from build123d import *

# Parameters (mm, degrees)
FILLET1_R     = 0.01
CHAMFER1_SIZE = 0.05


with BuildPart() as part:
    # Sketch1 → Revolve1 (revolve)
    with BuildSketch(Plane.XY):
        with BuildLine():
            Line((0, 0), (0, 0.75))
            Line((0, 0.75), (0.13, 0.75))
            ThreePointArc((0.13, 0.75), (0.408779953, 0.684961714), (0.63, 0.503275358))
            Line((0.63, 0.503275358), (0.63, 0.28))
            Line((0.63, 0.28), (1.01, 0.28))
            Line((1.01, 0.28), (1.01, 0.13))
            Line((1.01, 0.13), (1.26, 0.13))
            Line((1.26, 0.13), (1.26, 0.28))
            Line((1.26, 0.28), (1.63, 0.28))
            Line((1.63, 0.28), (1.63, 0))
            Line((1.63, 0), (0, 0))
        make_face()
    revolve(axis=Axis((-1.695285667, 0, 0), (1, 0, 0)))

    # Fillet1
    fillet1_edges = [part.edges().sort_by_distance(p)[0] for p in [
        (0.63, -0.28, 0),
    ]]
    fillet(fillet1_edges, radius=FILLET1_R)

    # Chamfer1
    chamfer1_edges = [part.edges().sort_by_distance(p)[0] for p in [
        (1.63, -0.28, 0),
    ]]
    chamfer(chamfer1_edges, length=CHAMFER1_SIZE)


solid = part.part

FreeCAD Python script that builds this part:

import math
import FreeCAD as App
import Part
import Sketcher

V = App.Vector
Q = App.Units.Quantity


def edges_at(feature, points):
    """Names of the edges that pass closest to the given points."""
    edges = feature.Shape.Edges
    near = lambda p: min(range(len(edges)), key=lambda i: edges[i].distToShape(Part.Vertex(*p))[0])
    return sorted({f"Edge{near(p) + 1}" for p in points})

doc = App.newDocument("Part")
body = doc.addObject("PartDesign::Body", "Body")

# Sketch on XY plane
sketch1 = doc.addObject("Sketcher::SketchObject", "Sketch")
body.addObject(sketch1)
sketch1.AttachmentSupport = (doc.XY_Plane, [""])
sketch1.MapMode = "FlatFace"
sketch1.addGeometry([
    Part.LineSegment(V(0, 0.75, 0), V(0, 0, 0)),  # 0
    Part.LineSegment(V(0, 0, 0), V(1.63, 0, 0)),  # 1
    Part.LineSegment(V(1.63, 0, 0), V(1.63, 0.28, 0)),  # 2
    Part.LineSegment(V(1.63, 0.28, 0), V(1.26, 0.28, 0)),  # 3
    Part.LineSegment(V(1.26, 0.28, 0), V(1.26, 0.13, 0)),  # 4
    Part.LineSegment(V(1.26, 0.13, 0), V(1.01, 0.13, 0)),  # 5
    Part.LineSegment(V(1.01, 0.13, 0), V(1.01, 0.28, 0)),  # 6
    Part.LineSegment(V(1.01, 0.28, 0), V(0.63, 0.28, 0)),  # 7
    Part.LineSegment(V(0.63, 0.28, 0), V(0.63, 0.5, 0)),  # 8
    Part.ArcOfCircle(Part.Circle(V(0.13, 0.12, 0), V(0, 0, 1), 0.63), math.radians(37), math.radians(90)),  # 9
    Part.LineSegment(V(0.13, 0.75, 0), V(0, 0.75, 0)),  # 10
], False)
sketch1.addConstraint([
    Sketcher.Constraint("Coincident", 0, 2, 1, 1),
    Sketcher.Constraint("Coincident", 1, 2, 2, 1),
    Sketcher.Constraint("Coincident", 2, 2, 3, 1),
    Sketcher.Constraint("Coincident", 3, 2, 4, 1),
    Sketcher.Constraint("Coincident", 4, 2, 5, 1),
    Sketcher.Constraint("Coincident", 5, 2, 6, 1),
    Sketcher.Constraint("Coincident", 6, 2, 7, 1),
    Sketcher.Constraint("Coincident", 7, 2, 8, 1),
    Sketcher.Constraint("Coincident", 8, 2, 9, 1),
    Sketcher.Constraint("Tangent", 9, 2, 10, 1),
    Sketcher.Constraint("Coincident", 10, 2, 0, 1),
    Sketcher.Constraint("Vertical", 0),
    Sketcher.Constraint("Horizontal", 1),
    Sketcher.Constraint("Vertical", 2),
    Sketcher.Constraint("Horizontal", 3),
    Sketcher.Constraint("Vertical", 4),
    Sketcher.Constraint("Horizontal", 5),
    Sketcher.Constraint("Vertical", 6),
    Sketcher.Constraint("Horizontal", 7),
    Sketcher.Constraint("Vertical", 8),
    Sketcher.Constraint("Horizontal", 10),
    Sketcher.Constraint("Coincident", 0, 2, -1, 1),
    Sketcher.Constraint("Horizontal", 3, 2, 6, 2),
    Sketcher.Constraint("Radius", 9, Q("0.63 mm")),
    Sketcher.Constraint("DistanceX", 1, 1, 1, 2, Q("1.63 mm")),
    Sketcher.Constraint("DistanceX", 3, 2, 3, 1, Q("0.37 mm")),
    Sketcher.Constraint("DistanceX", 5, 2, 5, 1, Q("0.25 mm")),
    Sketcher.Constraint("DistanceX", 7, 2, 7, 1, Q("0.38 mm")),
    Sketcher.Constraint("DistanceX", 10, 2, 10, 1, Q("0.13 mm")),
    Sketcher.Constraint("DistanceY", 0, 2, 0, 1, Q("0.75 mm")),
    Sketcher.Constraint("DistanceY", 2, 1, 2, 2, Q("0.28 mm")),
    Sketcher.Constraint("DistanceY", 4, 2, 4, 1, Q("0.15 mm")),
])
revolution = doc.addObject("PartDesign::Revolution", "Revolution")
body.addObject(revolution)
revolution.Profile = sketch1
revolution.ReferenceAxis = (sketch1, ["H_Axis"])
revolution.Angle = 360
doc.recompute()

fillet = doc.addObject("PartDesign::Fillet", "Fillet")
body.addObject(fillet)
fillet.Base = (revolution, edges_at(revolution, [(0.63, -0.28, 0)]))
fillet.Radius = 0.01
doc.recompute()

chamfer = doc.addObject("PartDesign::Chamfer", "Chamfer")
body.addObject(chamfer)
chamfer.Base = (fillet, edges_at(fillet, [(1.63, -0.28, 0)]))
chamfer.Size = 0.05

doc.recompute()
